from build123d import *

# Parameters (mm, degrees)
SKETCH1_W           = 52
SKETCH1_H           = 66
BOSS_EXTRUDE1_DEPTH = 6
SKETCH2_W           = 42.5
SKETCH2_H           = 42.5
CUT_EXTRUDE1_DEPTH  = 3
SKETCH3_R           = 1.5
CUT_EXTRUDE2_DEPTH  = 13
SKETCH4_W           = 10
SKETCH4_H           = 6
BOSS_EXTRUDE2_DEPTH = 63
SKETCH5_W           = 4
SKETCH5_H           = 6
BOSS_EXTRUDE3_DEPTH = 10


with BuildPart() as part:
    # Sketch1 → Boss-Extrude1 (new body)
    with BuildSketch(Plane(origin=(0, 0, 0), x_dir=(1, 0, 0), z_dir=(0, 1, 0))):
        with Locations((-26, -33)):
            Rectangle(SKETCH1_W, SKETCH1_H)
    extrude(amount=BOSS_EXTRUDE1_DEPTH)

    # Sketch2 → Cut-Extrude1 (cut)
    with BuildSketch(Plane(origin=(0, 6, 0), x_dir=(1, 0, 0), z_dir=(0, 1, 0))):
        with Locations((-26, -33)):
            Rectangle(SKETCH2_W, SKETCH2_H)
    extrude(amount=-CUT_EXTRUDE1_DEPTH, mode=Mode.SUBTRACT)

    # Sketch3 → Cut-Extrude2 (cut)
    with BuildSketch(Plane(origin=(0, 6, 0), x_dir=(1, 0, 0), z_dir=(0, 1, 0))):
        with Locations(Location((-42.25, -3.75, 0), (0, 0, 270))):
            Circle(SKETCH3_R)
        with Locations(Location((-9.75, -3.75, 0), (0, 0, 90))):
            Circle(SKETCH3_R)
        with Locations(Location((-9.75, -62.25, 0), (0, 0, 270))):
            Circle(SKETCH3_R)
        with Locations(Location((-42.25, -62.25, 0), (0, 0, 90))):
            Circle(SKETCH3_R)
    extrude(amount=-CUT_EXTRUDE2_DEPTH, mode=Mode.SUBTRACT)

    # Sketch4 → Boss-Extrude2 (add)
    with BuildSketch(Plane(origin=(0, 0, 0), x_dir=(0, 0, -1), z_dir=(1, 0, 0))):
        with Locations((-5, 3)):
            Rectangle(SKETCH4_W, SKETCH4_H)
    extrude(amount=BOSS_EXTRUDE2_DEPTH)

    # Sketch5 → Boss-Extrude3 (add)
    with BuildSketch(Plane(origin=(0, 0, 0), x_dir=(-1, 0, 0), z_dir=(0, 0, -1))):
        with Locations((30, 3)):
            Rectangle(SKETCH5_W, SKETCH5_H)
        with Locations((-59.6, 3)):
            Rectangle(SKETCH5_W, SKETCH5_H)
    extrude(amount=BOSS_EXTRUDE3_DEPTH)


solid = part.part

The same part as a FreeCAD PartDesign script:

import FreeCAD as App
import Part
import Sketcher
Q = App.Units.Quantity

doc = App.newDocument("Part")
body = doc.addObject("PartDesign::Body", "Body")

# Sketch on XZ plane
sketch1 = doc.addObject("Sketcher::SketchObject", "Sketch")
body.addObject(sketch1)
sketch1.AttachmentSupport = (doc.XZ_Plane, [""])
sketch1.MapMode = "FlatFace"
sketch1.addGeometry(Part.LineSegment(App.Vector(-52, 0, 0), App.Vector(-52, 66, 0)), False)
sketch1.addGeometry(Part.LineSegment(App.Vector(-52, 66, 0), App.Vector(0, 66, 0)), False)
sketch1.addGeometry(Part.LineSegment(App.Vector(0, 66, 0), App.Vector(0, 0, 0)), False)
sketch1.addGeometry(Part.LineSegment(App.Vector(0, 0, 0), App.Vector(-52, 0, 0)), False)
sketch1.addConstraint(Sketcher.Constraint("Coincident", 0, 2, 1, 1))
sketch1.addConstraint(Sketcher.Constraint("Coincident", 1, 2, 2, 1))
sketch1.addConstraint(Sketcher.Constraint("Coincident", 2, 2, 3, 1))
sketch1.addConstraint(Sketcher.Constraint("Coincident", 3, 2, 0, 1))
sketch1.addConstraint(Sketcher.Constraint("Vertical", 0))
sketch1.addConstraint(Sketcher.Constraint("Horizontal", 1))
sketch1.addConstraint(Sketcher.Constraint("Vertical", 2))
sketch1.addConstraint(Sketcher.Constraint("Horizontal", 3))
sketch1.addConstraint(Sketcher.Constraint("Coincident", 2, 2, -1, 1))
sketch1.addConstraint(Sketcher.Constraint("DistanceX", 1, 1, 1, 2, Q("52 mm")))
sketch1.addConstraint(Sketcher.Constraint("DistanceY", 0, 1, 0, 2, Q("66 mm")))
pad1 = doc.addObject("PartDesign::Pad", "Pad")
body.addObject(pad1)
pad1.Profile = sketch1
pad1.Length = 6
pad1.Reversed = True

# Sketch on XZ plane
sketch2 = doc.addObject("Sketcher::SketchObject", "Sketch001")
body.addObject(sketch2)
sketch2.AttachmentSupport = (doc.XZ_Plane, [""])
sketch2.MapMode = "FlatFace"
sketch2.AttachmentOffset = App.Placement(App.Vector(0, 0, -6), App.Rotation())
sketch2.addGeometry(Part.LineSegment(App.Vector(-47.25, 11.75, 0), App.Vector(-47.25, 54.25, 0)), False)
sketch2.addGeometry(Part.LineSegment(App.Vector(-47.25, 54.25, 0), App.Vector(-4.75, 54.25, 0)), False)
sketch2.addGeometry(Part.LineSegment(App.Vector(-4.75, 54.25, 0), App.Vector(-4.75, 11.75, 0)), False)
sketch2.addGeometry(Part.LineSegment(App.Vector(-4.75, 11.75, 0), App.Vector(-47.25, 11.75, 0)), False)
sketch2.addConstraint(Sketcher.Constraint("Coincident", 0, 2, 1, 1))
sketch2.addConstraint(Sketcher.Constraint("Coincident", 1, 2, 2, 1))
sketch2.addConstraint(Sketcher.Constraint("Coincident", 2, 2, 3, 1))
sketch2.addConstraint(Sketcher.Constraint("Coincident", 3, 2, 0, 1))
sketch2.addConstraint(Sketcher.Constraint("Vertical", 0))
sketch2.addConstraint(Sketcher.Constraint("Horizontal", 1))
sketch2.addConstraint(Sketcher.Constraint("Vertical", 2))
sketch2.addConstraint(Sketcher.Constraint("Horizontal", 3))
sketch2.addConstraint(Sketcher.Constraint("Equal", 3, 0))
sketch2.addConstraint(Sketcher.Constraint("DistanceX", 1, 1, 1, 2, Q("42.5 mm")))
sketch2.addConstraint(Sketcher.Constraint("DistanceX", 0, 2, -1, 1, Q("47.25 mm")))
sketch2.addConstraint(Sketcher.Constraint("DistanceY", -1, 1, 0, 2, Q("54.25 mm")))
pocket1 = doc.addObject("PartDesign::Pocket", "Pocket")
body.addObject(pocket1)
pocket1.Profile = sketch2
pocket1.Length = 3
pocket1.Reversed = True

# Sketch on XZ plane
sketch3 = doc.addObject("Sketcher::SketchObject", "Sketch002")
body.addObject(sketch3)
sketch3.AttachmentSupport = (doc.XZ_Plane, [""])
sketch3.MapMode = "FlatFace"
sketch3.AttachmentOffset = App.Placement(App.Vector(0, 0, -6), App.Rotation())
sketch3.addGeometry(Part.Circle(App.Vector(-42.25, 3.75, 0), App.Vector(0, 0, 1), 1.5), False)
sketch3.addGeometry(Part.Circle(App.Vector(-9.75, 3.75, 0), App.Vector(0, 0, 1), 1.5), False)
sketch3.addGeometry(Part.Circle(App.Vector(-9.75, 62.25, 0), App.Vector(0, 0, 1), 1.5), False)
sketch3.addGeometry(Part.Circle(App.Vector(-42.25, 62.25, 0), App.Vector(0, 0, 1), 1.5), False)
sketch3.addConstraint(Sketcher.Constraint("Equal", 0, 1))
sketch3.addConstraint(Sketcher.Constraint("Equal", 1, 2))
sketch3.addConstraint(Sketcher.Constraint("Equal", 2, 3))
sketch3.addConstraint(Sketcher.Constraint("Horizontal", 0, 3, 1, 3))
sketch3.addConstraint(Sketcher.Constraint("Horizontal", 2, 3, 3, 3))
sketch3.addConstraint(Sketcher.Constraint("Vertical", 1, 3, 2, 3))
sketch3.addConstraint(Sketcher.Constraint("Vertical", 0, 3, 3, 3))
sketch3.addConstraint(Sketcher.Constraint("Diameter", 0, Q("3 mm")))
sketch3.addConstraint(Sketcher.Constraint("DistanceX", 0, 3, 1, 3, Q("32.5 mm")))
sketch3.addConstraint(Sketcher.Constraint("DistanceY", 1, 3, 2, 3, Q("58.5 mm")))
sketch3.addConstraint(Sketcher.Constraint("DistanceX", 0, 3, -1, 1, Q("42.25 mm")))
sketch3.addConstraint(Sketcher.Constraint("DistanceY", -1, 1, 0, 3, Q("3.75 mm")))
pocket2 = doc.addObject("PartDesign::Pocket", "Pocket001")
body.addObject(pocket2)
pocket2.Profile = sketch3
pocket2.Length = 13
pocket2.Reversed = True

# Sketch on YZ plane
sketch4 = doc.addObject("Sketcher::SketchObject", "Sketch003")
body.addObject(sketch4)
sketch4.AttachmentSupport = (doc.YZ_Plane, [""])
sketch4.MapMode = "FlatFace"
sketch4.addGeometry(Part.LineSegment(App.Vector(6, 10, 0), App.Vector(0, 10, 0)), False)
sketch4.addGeometry(Part.LineSegment(App.Vector(0, 10, 0), App.Vector(0, 0, 0)), False)
sketch4.addGeometry(Part.LineSegment(App.Vector(0, 0, 0), App.Vector(6, 0, 0)), False)
sketch4.addGeometry(Part.LineSegment(App.Vector(6, 0, 0), App.Vector(6, 10, 0)), False)
sketch4.addConstraint(Sketcher.Constraint("Coincident", 0, 2, 1, 1))
sketch4.addConstraint(Sketcher.Constraint("Coincident", 1, 2, 2, 1))
sketch4.addConstraint(Sketcher.Constraint("Coincident", 2, 2, 3, 1))
sketch4.addConstraint(Sketcher.Constraint("Coincident", 3, 2, 0, 1))
sketch4.addConstraint(Sketcher.Constraint("Horizontal", 0))
sketch4.addConstraint(Sketcher.Constraint("Vertical", 1))
sketch4.addConstraint(Sketcher.Constraint("Horizontal", 2))
sketch4.addConstraint(Sketcher.Constraint("Vertical", 3))
sketch4.addConstraint(Sketcher.Constraint("Coincident", 1, 2, -1, 1))
sketch4.addConstraint(Sketcher.Constraint("DistanceX", 0, 2, 0, 1, Q("6 mm")))
sketch4.addConstraint(Sketcher.Constraint("DistanceY", 1, 2, 1, 1, Q("10 mm")))
pad2 = doc.addObject("PartDesign::Pad", "Pad001")
body.addObject(pad2)
pad2.Profile = sketch4
pad2.Length = 63

# Sketch on XY plane
sketch5 = doc.addObject("Sketcher::SketchObject", "Sketch004")
body.addObject(sketch5)
sketch5.AttachmentSupport = (doc.XY_Plane, [""])
sketch5.MapMode = "FlatFace"
sketch5.addGeometry(Part.LineSegment(App.Vector(-28, 6, 0), App.Vector(-28, 0, 0)), False)
sketch5.addGeometry(Part.LineSegment(App.Vector(-28, 0, 0), App.Vector(-32, 0, 0)), False)
sketch5.addGeometry(Part.LineSegment(App.Vector(-32, 0, 0), App.Vector(-32, 6, 0)), False)
sketch5.addGeometry(Part.LineSegment(App.Vector(-32, 6, 0), App.Vector(-28, 6, 0)), False)
sketch5.addGeometry(Part.LineSegment(App.Vector(61.6, 6, 0), App.Vector(61.6, 0, 0)), False)
sketch5.addGeometry(Part.LineSegment(App.Vector(61.6, 0, 0), App.Vector(57.6, 0, 0)), False)
sketch5.addGeometry(Part.LineSegment(App.Vector(57.6, 0, 0), App.Vector(57.6, 6, 0)), False)
sketch5.addGeometry(Part.LineSegment(App.Vector(57.6, 6, 0), App.Vector(61.6, 6, 0)), False)
sketch5.addConstraint(Sketcher.Constraint("Coincident", 0, 2, 1, 1))
sketch5.addConstraint(Sketcher.Constraint("Coincident", 1, 2, 2, 1))
sketch5.addConstraint(Sketcher.Constraint("Coincident", 2, 2, 3, 1))
sketch5.addConstraint(Sketcher.Constraint("Coincident", 3, 2, 0, 1))
sketch5.addConstraint(Sketcher.Constraint("Coincident", 4, 2, 5, 1))
sketch5.addConstraint(Sketcher.Constraint("Coincident", 5, 2, 6, 1))
sketch5.addConstraint(Sketcher.Constraint("Coincident", 6, 2, 7, 1))
sketch5.addConstraint(Sketcher.Constraint("Coincident", 7, 2, 4, 1))
sketch5.addConstraint(Sketcher.Constraint("Vertical", 0))
sketch5.addConstraint(Sketcher.Constraint("Horizontal", 1))
sketch5.addConstraint(Sketcher.Constraint("Vertical", 2))
sketch5.addConstraint(Sketcher.Constraint("Horizontal", 3))
sketch5.addConstraint(Sketcher.Constraint("Vertical", 4))
sketch5.addConstraint(Sketcher.Constraint("Horizontal", 5))
sketch5.addConstraint(Sketcher.Constraint("Vertical", 6))
sketch5.addConstraint(Sketcher.Constraint("Horizontal", 7))
sketch5.addConstraint(Sketcher.Constraint("PointOnObject", 0, 2, -1))
sketch5.addConstraint(Sketcher.Constraint("PointOnObject", 4, 2, -1))
sketch5.addConstraint(Sketcher.Constraint("Horizontal", 3, 2, 6, 2))
sketch5.addConstraint(Sketcher.Constraint("Equal", 3, 5))
sketch5.addConstraint(Sketcher.Constraint("DistanceX", 1, 2, 1, 1, Q("4 mm")))
sketch5.addConstraint(Sketcher.Constraint("DistanceY", 0, 2, 0, 1, Q("6 mm")))
sketch5.addConstraint(Sketcher.Constraint("DistanceX", 0, 2, -1, 1, Q("28 mm")))
sketch5.addConstraint(Sketcher.Constraint("DistanceX", -1, 1, 4, 2, Q("61.6 mm")))
pad3 = doc.addObject("PartDesign::Pad", "Pad002")
body.addObject(pad3)
pad3.Profile = sketch5
pad3.Length = 10
pad3.Reversed = True

doc.recompute()
